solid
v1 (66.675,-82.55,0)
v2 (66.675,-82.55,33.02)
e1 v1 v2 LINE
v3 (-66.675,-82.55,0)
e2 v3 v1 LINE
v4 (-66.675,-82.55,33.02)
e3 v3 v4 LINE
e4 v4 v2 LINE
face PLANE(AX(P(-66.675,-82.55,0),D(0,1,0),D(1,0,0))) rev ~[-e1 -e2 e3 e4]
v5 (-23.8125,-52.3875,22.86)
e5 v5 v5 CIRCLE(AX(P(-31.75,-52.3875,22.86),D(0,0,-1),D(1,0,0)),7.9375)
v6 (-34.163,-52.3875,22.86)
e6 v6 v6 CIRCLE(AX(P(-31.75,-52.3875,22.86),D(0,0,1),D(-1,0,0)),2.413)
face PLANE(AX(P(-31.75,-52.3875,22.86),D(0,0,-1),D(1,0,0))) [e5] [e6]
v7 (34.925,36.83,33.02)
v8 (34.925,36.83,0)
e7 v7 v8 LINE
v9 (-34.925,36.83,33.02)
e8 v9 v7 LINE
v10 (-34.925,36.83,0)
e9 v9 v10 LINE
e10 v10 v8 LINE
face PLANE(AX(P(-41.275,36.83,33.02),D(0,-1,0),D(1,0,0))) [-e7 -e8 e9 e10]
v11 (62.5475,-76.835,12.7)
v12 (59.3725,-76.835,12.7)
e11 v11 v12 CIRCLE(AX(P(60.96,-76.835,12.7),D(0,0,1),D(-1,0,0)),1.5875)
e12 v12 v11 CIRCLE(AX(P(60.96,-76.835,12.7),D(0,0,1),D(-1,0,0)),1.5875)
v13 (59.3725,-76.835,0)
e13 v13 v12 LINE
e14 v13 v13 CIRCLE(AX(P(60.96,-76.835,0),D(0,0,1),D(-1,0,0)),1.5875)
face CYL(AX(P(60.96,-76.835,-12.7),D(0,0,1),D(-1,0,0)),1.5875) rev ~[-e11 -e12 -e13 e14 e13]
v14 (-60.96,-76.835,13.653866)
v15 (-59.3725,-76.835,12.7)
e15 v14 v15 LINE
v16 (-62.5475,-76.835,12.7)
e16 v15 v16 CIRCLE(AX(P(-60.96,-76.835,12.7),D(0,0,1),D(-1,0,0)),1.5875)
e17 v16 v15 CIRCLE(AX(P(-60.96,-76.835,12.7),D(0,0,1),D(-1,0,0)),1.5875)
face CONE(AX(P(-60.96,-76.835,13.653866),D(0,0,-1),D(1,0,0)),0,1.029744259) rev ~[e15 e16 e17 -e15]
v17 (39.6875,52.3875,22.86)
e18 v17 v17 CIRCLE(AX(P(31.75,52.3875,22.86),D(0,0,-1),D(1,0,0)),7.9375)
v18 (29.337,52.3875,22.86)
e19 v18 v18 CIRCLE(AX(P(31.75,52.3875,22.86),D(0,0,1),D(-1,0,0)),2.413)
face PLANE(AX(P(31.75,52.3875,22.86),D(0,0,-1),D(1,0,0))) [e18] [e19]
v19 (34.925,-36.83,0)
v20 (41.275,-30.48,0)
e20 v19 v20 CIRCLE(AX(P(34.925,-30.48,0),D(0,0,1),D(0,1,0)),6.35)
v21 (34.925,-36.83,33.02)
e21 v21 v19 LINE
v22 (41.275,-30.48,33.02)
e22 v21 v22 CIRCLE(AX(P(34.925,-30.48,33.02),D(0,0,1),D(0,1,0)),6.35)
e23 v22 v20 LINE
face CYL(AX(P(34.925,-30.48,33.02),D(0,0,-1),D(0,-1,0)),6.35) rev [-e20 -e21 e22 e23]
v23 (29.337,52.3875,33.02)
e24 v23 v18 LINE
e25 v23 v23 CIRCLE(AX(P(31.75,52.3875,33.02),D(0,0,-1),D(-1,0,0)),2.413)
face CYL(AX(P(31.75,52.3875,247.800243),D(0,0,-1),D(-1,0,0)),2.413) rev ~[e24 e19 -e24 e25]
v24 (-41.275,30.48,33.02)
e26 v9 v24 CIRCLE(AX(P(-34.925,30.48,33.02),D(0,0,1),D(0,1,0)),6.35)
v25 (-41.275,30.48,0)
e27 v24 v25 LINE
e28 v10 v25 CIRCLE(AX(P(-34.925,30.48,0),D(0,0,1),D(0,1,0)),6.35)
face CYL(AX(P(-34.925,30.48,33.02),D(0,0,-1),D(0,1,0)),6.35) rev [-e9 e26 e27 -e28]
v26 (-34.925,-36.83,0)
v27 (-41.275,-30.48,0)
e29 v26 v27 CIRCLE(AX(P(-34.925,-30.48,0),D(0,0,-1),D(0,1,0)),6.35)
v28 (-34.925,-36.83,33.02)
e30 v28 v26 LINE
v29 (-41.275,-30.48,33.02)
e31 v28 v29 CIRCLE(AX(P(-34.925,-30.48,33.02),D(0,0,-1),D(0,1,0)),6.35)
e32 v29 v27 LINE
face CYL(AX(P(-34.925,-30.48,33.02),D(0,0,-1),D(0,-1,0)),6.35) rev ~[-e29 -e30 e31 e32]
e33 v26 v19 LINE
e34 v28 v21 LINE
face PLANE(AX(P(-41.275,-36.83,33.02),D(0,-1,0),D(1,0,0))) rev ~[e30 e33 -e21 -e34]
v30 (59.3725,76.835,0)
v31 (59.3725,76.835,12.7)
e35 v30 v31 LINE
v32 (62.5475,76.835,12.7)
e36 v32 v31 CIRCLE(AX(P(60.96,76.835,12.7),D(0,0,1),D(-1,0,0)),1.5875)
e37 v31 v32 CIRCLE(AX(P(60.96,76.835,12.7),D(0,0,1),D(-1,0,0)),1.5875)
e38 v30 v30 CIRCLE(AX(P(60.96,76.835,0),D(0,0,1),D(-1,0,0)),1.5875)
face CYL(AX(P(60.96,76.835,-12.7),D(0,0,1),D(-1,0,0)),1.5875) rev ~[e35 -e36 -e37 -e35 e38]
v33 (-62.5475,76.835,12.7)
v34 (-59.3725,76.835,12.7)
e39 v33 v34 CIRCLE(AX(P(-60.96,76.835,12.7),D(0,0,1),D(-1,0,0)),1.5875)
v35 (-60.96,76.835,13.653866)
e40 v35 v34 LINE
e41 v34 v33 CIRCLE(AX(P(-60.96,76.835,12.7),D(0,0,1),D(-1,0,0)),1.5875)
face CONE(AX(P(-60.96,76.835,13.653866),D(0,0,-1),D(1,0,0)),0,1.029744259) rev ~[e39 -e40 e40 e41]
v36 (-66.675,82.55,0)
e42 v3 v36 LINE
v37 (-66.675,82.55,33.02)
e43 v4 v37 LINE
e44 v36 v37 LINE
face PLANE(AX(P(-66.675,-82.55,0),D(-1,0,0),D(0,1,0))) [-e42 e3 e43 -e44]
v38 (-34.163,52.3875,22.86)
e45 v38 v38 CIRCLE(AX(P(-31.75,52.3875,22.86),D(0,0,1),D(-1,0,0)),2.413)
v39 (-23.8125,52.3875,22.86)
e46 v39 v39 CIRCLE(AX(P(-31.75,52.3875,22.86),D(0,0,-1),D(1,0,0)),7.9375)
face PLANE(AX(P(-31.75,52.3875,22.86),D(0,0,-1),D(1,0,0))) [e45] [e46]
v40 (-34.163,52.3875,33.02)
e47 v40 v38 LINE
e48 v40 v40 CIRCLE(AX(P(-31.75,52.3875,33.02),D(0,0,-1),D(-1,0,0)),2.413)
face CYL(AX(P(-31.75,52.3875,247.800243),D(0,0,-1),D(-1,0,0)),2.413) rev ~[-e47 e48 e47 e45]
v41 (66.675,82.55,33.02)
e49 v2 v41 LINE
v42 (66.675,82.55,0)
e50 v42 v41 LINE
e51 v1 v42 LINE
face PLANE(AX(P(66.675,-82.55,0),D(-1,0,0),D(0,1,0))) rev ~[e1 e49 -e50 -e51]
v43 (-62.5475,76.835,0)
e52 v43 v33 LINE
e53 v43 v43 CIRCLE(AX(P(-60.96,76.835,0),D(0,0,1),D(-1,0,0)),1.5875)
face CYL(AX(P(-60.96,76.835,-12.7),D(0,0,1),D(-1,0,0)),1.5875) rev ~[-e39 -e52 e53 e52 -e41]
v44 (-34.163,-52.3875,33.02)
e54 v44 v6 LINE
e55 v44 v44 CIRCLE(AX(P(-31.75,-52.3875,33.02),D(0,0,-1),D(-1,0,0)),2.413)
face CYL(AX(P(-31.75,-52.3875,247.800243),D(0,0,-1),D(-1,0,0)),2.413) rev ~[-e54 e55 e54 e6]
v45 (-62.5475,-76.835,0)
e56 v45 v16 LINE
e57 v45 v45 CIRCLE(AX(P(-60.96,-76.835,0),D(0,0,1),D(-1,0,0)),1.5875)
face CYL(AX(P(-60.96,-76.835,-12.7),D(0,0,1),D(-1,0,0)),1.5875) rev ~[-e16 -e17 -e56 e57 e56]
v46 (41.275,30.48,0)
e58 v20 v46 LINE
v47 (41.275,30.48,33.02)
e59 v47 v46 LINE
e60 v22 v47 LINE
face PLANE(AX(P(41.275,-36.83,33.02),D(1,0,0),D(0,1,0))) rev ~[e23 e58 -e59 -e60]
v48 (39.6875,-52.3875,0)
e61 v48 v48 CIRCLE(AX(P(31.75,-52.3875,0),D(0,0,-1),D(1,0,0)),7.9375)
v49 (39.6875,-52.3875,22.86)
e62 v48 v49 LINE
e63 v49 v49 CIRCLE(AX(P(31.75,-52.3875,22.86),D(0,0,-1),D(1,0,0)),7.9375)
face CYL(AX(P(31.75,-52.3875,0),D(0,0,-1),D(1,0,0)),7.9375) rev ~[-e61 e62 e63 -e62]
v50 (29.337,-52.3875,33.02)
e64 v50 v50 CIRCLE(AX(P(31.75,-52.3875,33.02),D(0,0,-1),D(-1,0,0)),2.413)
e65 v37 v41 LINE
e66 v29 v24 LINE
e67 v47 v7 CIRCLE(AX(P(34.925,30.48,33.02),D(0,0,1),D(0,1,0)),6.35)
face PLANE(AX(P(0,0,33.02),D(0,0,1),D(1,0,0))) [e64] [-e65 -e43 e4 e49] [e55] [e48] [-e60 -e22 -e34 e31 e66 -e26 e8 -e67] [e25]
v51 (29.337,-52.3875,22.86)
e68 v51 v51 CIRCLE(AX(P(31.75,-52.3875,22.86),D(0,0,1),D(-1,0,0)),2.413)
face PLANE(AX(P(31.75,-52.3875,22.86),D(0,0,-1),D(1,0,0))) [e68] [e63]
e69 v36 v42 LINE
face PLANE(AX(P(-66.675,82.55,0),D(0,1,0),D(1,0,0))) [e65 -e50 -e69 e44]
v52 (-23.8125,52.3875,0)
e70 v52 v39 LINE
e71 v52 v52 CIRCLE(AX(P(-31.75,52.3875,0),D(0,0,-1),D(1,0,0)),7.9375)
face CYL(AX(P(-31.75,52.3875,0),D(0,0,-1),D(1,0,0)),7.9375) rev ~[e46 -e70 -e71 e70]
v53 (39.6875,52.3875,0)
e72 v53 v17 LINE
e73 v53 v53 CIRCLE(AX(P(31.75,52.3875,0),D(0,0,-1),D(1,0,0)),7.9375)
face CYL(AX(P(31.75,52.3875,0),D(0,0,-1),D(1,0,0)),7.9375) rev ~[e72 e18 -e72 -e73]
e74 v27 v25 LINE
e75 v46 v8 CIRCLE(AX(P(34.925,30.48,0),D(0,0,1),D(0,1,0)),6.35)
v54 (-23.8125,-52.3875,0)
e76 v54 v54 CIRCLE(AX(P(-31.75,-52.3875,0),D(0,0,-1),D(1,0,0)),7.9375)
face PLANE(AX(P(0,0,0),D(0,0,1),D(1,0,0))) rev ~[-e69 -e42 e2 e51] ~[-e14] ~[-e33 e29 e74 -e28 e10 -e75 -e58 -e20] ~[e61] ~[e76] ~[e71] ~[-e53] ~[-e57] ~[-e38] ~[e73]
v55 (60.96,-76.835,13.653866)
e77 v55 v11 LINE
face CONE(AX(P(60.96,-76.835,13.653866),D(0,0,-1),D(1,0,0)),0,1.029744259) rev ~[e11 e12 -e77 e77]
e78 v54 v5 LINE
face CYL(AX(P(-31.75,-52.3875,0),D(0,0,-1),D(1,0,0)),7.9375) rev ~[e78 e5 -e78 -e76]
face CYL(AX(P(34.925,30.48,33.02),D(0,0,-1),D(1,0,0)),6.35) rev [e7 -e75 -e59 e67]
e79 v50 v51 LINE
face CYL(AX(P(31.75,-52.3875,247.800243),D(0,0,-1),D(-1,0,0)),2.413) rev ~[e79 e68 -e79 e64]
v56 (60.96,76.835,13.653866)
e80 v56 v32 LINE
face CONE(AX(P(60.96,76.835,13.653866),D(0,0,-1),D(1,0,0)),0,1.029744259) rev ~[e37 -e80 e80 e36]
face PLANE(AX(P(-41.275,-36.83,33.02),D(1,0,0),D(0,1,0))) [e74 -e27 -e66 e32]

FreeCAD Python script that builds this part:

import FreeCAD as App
import Part
import Sketcher
from FreeCAD import Vector
Q = App.Units.Quantity


def edges_at(feature, points):
    """Names of the edges that pass closest to the given points."""
    edges = feature.Shape.Edges
    near = lambda p: min(range(len(edges)), key=lambda i: edges[i].distToShape(Part.Vertex(*p))[0])
    return sorted({f"Edge{near(p) + 1}" for p in points})


def add_polygon(sketch, points):
    """Adds a closed chain of lines whose ends are joined by coincident constraints."""
    first, n = sketch.GeometryCount, len(points)
    for a, b in zip(points, points[1:] + points[:1]):
        sketch.addGeometry(Part.LineSegment(App.Vector(*a, 0), App.Vector(*b, 0)), False)
    for i in range(n):
        sketch.addConstraint(Sketcher.Constraint("Coincident", first + i, 2, first + (i + 1) % n, 1))

doc = App.newDocument("Part")
body = doc.addObject("PartDesign::Body", "Body")

# Sketch on XY plane
sketch1 = body.newObject("Sketcher::SketchObject", "Sketch")
sketch1.AttachmentSupport = (doc.getObject("XY_Plane"), [""])
sketch1.MapMode = "FlatFace"
add_polygon(sketch1, [(-66.675, 82.55), (-66.675, -82.55), (66.675, -82.55), (66.675, 82.55)])  # lines 0-3
sketch1.addConstraint([
    Sketcher.Constraint("Vertical", 0),
    Sketcher.Constraint("Horizontal", 1),
    Sketcher.Constraint("Vertical", 2),
    Sketcher.Constraint("Horizontal", 3),
    Sketcher.Constraint("Symmetric", 0, 2, 2, 2, -1, 1),
    Sketcher.Constraint("DistanceY", 0, 2, 0, 1, Q("6.5 in")),
    Sketcher.Constraint("DistanceX", 1, 1, 1, 2, Q("5.25 in")),
])
pad1 = body.newObject("PartDesign::Pad", "Pad")
pad1.Profile = sketch1
pad1.Length = Q("1.3 in")

# Sketch on XY plane
sketch2 = body.newObject("Sketcher::SketchObject", "Sketch001")
sketch2.AttachmentSupport = (doc.getObject("XY_Plane"), [""])
sketch2.MapMode = "FlatFace"
sketch2.AttachmentOffset = App.Placement(Vector(0, 0, 1.3 * 25.4), App.Rotation())
add_polygon(sketch2, [(-41.275, 36.83), (-41.275, -36.83), (41.275, -36.83), (41.275, 36.83)])  # lines 0-3
sketch2.addConstraint([
    Sketcher.Constraint("Vertical", 0),
    Sketcher.Constraint("Horizontal", 1),
    Sketcher.Constraint("Vertical", 2),
    Sketcher.Constraint("Horizontal", 3),
    Sketcher.Constraint("Symmetric", 0, 2, 2, 2, -1, 1),
    Sketcher.Constraint("DistanceY", 0, 2, 0, 1, Q("2.9 in")),
    Sketcher.Constraint("DistanceX", 1, 1, 1, 2, Q("3.25 in")),
])
pocket1 = body.newObject("PartDesign::Pocket", "Pocket")
pocket1.Profile = sketch2
pocket1.Type = "ThroughAll"
doc.recompute()

fillet = body.newObject("PartDesign::Fillet", "Fillet")
fillet.Base = (pocket1, edges_at(pocket1, [
    (-41.275, 36.83, 16.51),
    (-41.275, -36.83, 16.51),
    (41.275, -36.83, 16.51),
    (41.275, 36.83, 16.51),
]))
fillet.Radius = Q("0.25 in")

# Sketch on XY plane
sketch3 = body.newObject("Sketcher::SketchObject", "Sketch002")
sketch3.AttachmentSupport = (doc.getObject("XY_Plane"), [""])
sketch3.MapMode = "FlatFace"
sketch3.AttachmentOffset = App.Placement(Vector(0, 0, 1.3 * 25.4), App.Rotation())
sketch3.addGeometry([
    Part.Circle(Vector(-31.75, 52.3875, 0), Vector(0, 0, 1), 2.413),
    Part.Circle(Vector(31.75, 52.3875, 0), Vector(0, 0, 1), 2.413),
    Part.Circle(Vector(31.75, -52.3875, 0), Vector(0, 0, 1), 2.413),
    Part.Circle(Vector(-31.75, -52.3875, 0), Vector(0, 0, 1), 2.413),
], False)
sketch3.addConstraint([
    Sketcher.Constraint("Equal", 0, 1),
    Sketcher.Constraint("Equal", 1, 2),
    Sketcher.Constraint("Equal", 2, 3),
    Sketcher.Constraint("Symmetric", 0, 3, 2, 3, -1, 1),
    Sketcher.Constraint("Symmetric", 1, 3, 3, 3, -1, 1),
    Sketcher.Constraint("Symmetric", 0, 3, 1, 3, -2),
    Sketcher.Constraint("Diameter", 0, Q("0.19 in")),
    Sketcher.Constraint("DistanceX", 0, 3, 1, 3, Q("2.5 in")),
    Sketcher.Constraint("DistanceY", -1, 1, 0, 3, Q("2.0625 in")),
])
doc.recompute()
hole = body.newObject("PartDesign::Hole", "Hole")
hole.Profile = sketch3
hole.ThreadType = "None"
hole.Diameter = Q("0.19 in")
hole.DepthType = "ThroughAll"

# Sketch on XY plane
sketch4 = body.newObject("Sketcher::SketchObject", "Sketch003")
sketch4.AttachmentSupport = (doc.getObject("XY_Plane"), [""])
sketch4.MapMode = "FlatFace"
sketch4.addGeometry([
    Part.Circle(Vector(-31.75, -52.3875, 0), Vector(0, 0, 1), 7.9375),  # 0
    Part.Circle(Vector(-31.75, -52.3875, 0), Vector(0, 0, 1), 2.413),  # 1
    Part.Circle(Vector(31.75, -52.3875, 0), Vector(0, 0, 1), 7.9375),  # 2
    Part.Circle(Vector(31.75, -52.3875, 0), Vector(0, 0, 1), 2.413),  # 3
    Part.Circle(Vector(31.75, 52.3875, 0), Vector(0, 0, 1), 7.9375),  # 4
    Part.Circle(Vector(31.75, 52.3875, 0), Vector(0, 0, 1), 2.413),  # 5
    Part.Circle(Vector(-31.75, 52.3875, 0), Vector(0, 0, 1), 7.9375),  # 6
    Part.Circle(Vector(-31.75, 52.3875, 0), Vector(0, 0, 1), 2.413),  # 7
], False)
sketch4.addConstraint([
    Sketcher.Constraint("Coincident", 1, 3, 0, 3),
    Sketcher.Constraint("Coincident", 3, 3, 2, 3),
    Sketcher.Constraint("Coincident", 5, 3, 4, 3),
    Sketcher.Constraint("Coincident", 7, 3, 6, 3),
    Sketcher.Constraint("Equal", 0, 2),
    Sketcher.Constraint("Equal", 1, 3),
    Sketcher.Constraint("Equal", 2, 4),
    Sketcher.Constraint("Equal", 3, 5),
    Sketcher.Constraint("Equal", 4, 6),
    Sketcher.Constraint("Equal", 5, 7),
    Sketcher.Constraint("Symmetric", 0, 3, 4, 3, -1, 1),
    Sketcher.Constraint("Symmetric", 2, 3, 6, 3, -1, 1),
    Sketcher.Constraint("Symmetric", 0, 3, 2, 3, -2),
    Sketcher.Constraint("Diameter", 1, Q("0.19 in")),
    Sketcher.Constraint("Diameter", 0, Q("0.625 in")),
    Sketcher.Constraint("DistanceX", 0, 3, 2, 3, Q("2.5 in")),
    Sketcher.Constraint("DistanceY", 0, 3, -1, 1, Q("2.0625 in")),
])
pocket2 = body.newObject("PartDesign::Pocket", "Pocket001")
pocket2.Profile = sketch4
pocket2.Length = Q("0.9 in")
pocket2.Reversed = True

# Sketch on XY plane
sketch5 = body.newObject("Sketcher::SketchObject", "Sketch004")
sketch5.AttachmentSupport = (doc.getObject("XY_Plane"), [""])
sketch5.MapMode = "FlatFace"
sketch5.addGeometry([
    Part.Circle(Vector(-60.96, -76.835, 0), Vector(0, 0, 1), 1.5875),
    Part.Circle(Vector(60.96, -76.835, 0), Vector(0, 0, 1), 1.5875),
    Part.Circle(Vector(60.96, 76.835, 0), Vector(0, 0, 1), 1.5875),
    Part.Circle(Vector(-60.96, 76.835, 0), Vector(0, 0, 1), 1.5875),
], False)
sketch5.addConstraint([
    Sketcher.Constraint("Equal", 0, 1),
    Sketcher.Constraint("Equal", 1, 2),
    Sketcher.Constraint("Equal", 2, 3),
    Sketcher.Constraint("Symmetric", 0, 3, 2, 3, -1, 1),
    Sketcher.Constraint("Symmetric", 1, 3, 3, 3, -1, 1),
    Sketcher.Constraint("Symmetric", 0, 3, 1, 3, -2),
    Sketcher.Constraint("Diameter", 0, Q("0.125 in")),
    Sketcher.Constraint("DistanceX", 0, 3, -1, 1, Q("2.4 in")),
    Sketcher.Constraint("DistanceY", 1, 3, 2, 3, Q("6.05 in")),
])
doc.recompute()
hole2 = body.newObject("PartDesign::Hole", "Hole001")
hole2.Profile = sketch5
hole2.ThreadType = "None"
hole2.Diameter = Q("0.125 in")
hole2.DepthType = "Dimension"
hole2.Depth = Q("0.5 in")
hole2.DrillPoint = "Angled"
hole2.DrillPointAngle = 118
hole2.Reversed = True

doc.recompute()
